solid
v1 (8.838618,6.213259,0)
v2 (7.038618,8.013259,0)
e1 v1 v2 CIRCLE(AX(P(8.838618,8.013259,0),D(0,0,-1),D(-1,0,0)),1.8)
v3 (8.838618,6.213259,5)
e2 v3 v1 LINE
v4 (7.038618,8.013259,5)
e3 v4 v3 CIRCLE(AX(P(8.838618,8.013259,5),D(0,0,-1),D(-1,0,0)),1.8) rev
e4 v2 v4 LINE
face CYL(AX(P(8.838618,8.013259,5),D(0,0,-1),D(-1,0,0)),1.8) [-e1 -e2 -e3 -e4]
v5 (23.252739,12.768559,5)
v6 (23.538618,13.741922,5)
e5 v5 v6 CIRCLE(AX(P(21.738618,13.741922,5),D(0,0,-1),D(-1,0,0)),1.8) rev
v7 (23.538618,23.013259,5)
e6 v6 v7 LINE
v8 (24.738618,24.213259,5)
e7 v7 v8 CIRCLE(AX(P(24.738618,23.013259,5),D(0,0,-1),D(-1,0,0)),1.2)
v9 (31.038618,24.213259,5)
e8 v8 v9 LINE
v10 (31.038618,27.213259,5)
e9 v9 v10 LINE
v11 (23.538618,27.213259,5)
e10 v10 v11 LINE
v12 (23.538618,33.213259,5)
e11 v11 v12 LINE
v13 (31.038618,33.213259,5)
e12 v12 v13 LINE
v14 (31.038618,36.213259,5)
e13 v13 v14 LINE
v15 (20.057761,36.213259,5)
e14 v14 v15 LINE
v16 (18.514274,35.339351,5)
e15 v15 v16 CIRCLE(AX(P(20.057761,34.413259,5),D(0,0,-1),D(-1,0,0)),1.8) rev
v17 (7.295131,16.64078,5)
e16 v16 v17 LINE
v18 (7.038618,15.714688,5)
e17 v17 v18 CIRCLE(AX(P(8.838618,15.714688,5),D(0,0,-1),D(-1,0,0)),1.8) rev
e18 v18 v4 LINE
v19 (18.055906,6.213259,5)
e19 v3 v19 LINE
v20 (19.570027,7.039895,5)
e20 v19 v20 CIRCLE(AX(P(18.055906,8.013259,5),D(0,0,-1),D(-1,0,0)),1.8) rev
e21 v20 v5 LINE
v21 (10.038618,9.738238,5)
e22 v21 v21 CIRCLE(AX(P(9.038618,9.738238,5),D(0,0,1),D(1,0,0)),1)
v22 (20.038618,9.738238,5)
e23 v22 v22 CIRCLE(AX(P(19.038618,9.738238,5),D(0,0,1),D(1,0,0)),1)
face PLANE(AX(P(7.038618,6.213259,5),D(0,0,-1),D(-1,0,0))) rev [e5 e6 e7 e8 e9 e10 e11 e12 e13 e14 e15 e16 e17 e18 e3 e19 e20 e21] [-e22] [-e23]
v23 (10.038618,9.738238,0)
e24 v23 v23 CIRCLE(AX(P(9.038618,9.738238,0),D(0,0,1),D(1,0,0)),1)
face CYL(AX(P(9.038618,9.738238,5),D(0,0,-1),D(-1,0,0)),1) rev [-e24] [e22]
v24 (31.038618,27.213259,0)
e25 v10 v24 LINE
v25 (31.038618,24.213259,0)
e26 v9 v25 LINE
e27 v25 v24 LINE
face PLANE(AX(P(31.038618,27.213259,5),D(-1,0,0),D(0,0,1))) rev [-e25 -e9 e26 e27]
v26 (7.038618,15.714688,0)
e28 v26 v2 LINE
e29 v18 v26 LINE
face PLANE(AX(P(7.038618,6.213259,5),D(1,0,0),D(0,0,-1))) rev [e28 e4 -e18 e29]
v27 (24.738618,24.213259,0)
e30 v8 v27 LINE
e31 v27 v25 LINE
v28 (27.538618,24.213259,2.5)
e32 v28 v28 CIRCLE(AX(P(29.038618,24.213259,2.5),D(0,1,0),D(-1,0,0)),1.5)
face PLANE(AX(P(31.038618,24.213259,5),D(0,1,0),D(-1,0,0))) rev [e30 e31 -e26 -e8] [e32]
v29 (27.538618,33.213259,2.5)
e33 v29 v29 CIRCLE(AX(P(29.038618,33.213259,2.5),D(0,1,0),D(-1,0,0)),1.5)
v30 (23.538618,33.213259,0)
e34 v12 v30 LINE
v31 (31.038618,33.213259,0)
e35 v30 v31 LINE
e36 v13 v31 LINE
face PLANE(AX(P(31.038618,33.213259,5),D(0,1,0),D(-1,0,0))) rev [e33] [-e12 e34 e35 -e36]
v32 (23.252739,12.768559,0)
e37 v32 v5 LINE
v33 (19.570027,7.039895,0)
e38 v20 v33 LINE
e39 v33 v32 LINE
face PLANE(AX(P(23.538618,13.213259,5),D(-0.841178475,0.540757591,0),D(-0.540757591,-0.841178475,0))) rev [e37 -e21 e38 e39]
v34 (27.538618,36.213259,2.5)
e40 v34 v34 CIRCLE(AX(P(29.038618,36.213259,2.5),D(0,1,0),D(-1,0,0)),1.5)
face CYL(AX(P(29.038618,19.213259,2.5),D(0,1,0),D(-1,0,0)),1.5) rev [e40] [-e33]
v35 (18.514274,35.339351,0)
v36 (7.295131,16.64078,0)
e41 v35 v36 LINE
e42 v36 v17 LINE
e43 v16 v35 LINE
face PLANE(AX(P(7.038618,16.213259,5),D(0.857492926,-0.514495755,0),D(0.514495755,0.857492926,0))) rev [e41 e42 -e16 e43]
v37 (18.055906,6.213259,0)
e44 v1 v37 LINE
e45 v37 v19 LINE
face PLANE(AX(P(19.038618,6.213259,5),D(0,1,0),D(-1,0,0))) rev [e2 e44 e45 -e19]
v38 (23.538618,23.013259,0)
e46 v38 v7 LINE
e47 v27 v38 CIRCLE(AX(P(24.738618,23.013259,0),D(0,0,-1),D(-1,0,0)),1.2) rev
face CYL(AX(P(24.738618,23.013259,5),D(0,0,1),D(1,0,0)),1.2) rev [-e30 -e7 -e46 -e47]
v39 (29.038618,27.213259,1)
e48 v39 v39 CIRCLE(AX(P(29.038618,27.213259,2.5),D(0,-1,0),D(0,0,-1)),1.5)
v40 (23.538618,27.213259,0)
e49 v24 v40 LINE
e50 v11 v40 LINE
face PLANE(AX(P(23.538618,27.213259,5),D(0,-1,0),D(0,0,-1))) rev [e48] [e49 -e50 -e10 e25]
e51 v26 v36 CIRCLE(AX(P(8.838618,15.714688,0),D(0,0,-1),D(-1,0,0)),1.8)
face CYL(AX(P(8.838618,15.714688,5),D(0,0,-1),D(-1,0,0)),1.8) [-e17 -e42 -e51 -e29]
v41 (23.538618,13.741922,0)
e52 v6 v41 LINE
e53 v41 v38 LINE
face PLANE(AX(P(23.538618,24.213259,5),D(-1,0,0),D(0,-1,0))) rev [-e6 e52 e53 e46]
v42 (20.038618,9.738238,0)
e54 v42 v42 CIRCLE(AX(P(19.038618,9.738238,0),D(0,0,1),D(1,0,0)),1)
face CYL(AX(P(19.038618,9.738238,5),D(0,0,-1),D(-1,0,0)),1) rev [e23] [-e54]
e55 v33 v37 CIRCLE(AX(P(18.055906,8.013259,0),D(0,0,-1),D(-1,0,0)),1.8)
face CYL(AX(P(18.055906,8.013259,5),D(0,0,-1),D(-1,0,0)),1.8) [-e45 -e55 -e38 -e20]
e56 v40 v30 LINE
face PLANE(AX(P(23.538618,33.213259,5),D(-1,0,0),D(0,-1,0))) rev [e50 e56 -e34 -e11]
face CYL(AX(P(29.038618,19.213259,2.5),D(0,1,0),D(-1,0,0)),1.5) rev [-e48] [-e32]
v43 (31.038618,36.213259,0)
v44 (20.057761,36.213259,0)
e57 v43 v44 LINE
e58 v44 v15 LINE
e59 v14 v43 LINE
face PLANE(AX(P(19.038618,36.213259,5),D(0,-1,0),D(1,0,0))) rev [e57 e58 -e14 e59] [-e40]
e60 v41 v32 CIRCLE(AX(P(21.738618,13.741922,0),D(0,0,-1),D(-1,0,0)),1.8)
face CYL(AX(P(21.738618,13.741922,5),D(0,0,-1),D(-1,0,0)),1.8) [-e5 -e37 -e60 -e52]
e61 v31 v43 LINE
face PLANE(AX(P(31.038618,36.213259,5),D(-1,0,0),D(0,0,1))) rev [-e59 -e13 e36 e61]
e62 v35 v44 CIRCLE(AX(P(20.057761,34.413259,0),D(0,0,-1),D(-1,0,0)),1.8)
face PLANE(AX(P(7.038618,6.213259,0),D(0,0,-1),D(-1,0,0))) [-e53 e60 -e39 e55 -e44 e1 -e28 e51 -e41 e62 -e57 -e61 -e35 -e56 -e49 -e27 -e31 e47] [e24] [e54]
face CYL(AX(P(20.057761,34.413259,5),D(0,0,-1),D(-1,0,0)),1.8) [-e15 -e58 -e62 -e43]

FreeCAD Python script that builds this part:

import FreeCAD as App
import Part
import Sketcher

V = App.Vector


def edges_at(feature, points):
    """Names of the edges that pass closest to the given points."""
    edges = feature.Shape.Edges
    near = lambda p: min(range(len(edges)), key=lambda i: edges[i].distToShape(Part.Vertex(*p))[0])
    return sorted({f"Edge{near(p) + 1}" for p in points})

doc = App.newDocument("Part")
body = doc.addObject("PartDesign::Body", "Body")

# Sketch on XY plane
sketch1 = body.newObject("Sketcher::SketchObject", "Sketch")
sketch1.AttachmentSupport = (doc.getObject("XY_Plane"), [""])
sketch1.MapMode = "FlatFace"
sketch1.addGeometry([
    Part.LineSegment(V(7, 16.2, 0), V(7, 6.2, 0)),  # 0
    Part.LineSegment(V(7, 6.2, 0), V(19, 6.2, 0)),  # 1
    Part.LineSegment(V(19, 6.2, 0), V(23.5, 13.2, 0)),  # 2
    Part.LineSegment(V(23.5, 13.2, 0), V(23.5, 24.2, 0)),  # 3
    Part.LineSegment(V(23.5, 24.2, 0), V(31, 24.2, 0)),  # 4
    Part.LineSegment(V(31, 24.2, 0), V(31, 27.2, 0)),  # 5
    Part.LineSegment(V(31, 27.2, 0), V(23.5, 27.2, 0)),  # 6
    Part.LineSegment(V(23.5, 27.2, 0), V(23.5, 33.2, 0)),  # 7
    Part.LineSegment(V(23.5, 33.2, 0), V(31, 33.2, 0)),  # 8
    Part.LineSegment(V(31, 33.2, 0), V(31, 36.2, 0)),  # 9
    Part.LineSegment(V(31, 36.2, 0), V(19, 36.2, 0)),  # 10
    Part.LineSegment(V(19, 36.2, 0), V(7, 16.2, 0)),  # 11
    Part.Circle(V(19, 9.7, 0), V(0, 0, 1), 1),  # 12
    Part.Circle(V(9, 9.7, 0), V(0, 0, 1), 1),  # 13
], False)
sketch1.addConstraint([
    Sketcher.Constraint("Coincident", 0, 2, 1, 1),
    Sketcher.Constraint("Coincident", 1, 2, 2, 1),
    Sketcher.Constraint("Coincident", 2, 2, 3, 1),
    Sketcher.Constraint("Coincident", 3, 2, 4, 1),
    Sketcher.Constraint("Coincident", 4, 2, 5, 1),
    Sketcher.Constraint("Coincident", 5, 2, 6, 1),
    Sketcher.Constraint("Coincident", 6, 2, 7, 1),
    Sketcher.Constraint("Coincident", 7, 2, 8, 1),
    Sketcher.Constraint("Coincident", 8, 2, 9, 1),
    Sketcher.Constraint("Coincident", 9, 2, 10, 1),
    Sketcher.Constraint("Coincident", 10, 2, 11, 1),
    Sketcher.Constraint("Coincident", 11, 2, 0, 1),
    Sketcher.Constraint("Vertical", 0),
    Sketcher.Constraint("Horizontal", 1),
    Sketcher.Constraint("Vertical", 3),
    Sketcher.Constraint("Horizontal", 4),
    Sketcher.Constraint("Vertical", 5),
    Sketcher.Constraint("Horizontal", 6),
    Sketcher.Constraint("Vertical", 7),
    Sketcher.Constraint("Horizontal", 8),
    Sketcher.Constraint("Vertical", 9),
    Sketcher.Constraint("Horizontal", 10),
    Sketcher.Constraint("Equal", 12, 13),
    Sketcher.Constraint("Horizontal", 12, 3, 13, 3),
    Sketcher.Constraint("Vertical", 12, 3, 1, 2),
    Sketcher.Constraint("Vertical", 3, 2, 6, 2),
    Sketcher.Constraint("Vertical", 5, 2, 8, 2),
    Sketcher.Constraint("Vertical", 1, 2, 10, 2),
    Sketcher.Constraint("Equal", 1, 10),
    Sketcher.Constraint("Equal", 5, 9),
    Sketcher.Constraint("Diameter", 12, 2.0),
    Sketcher.Constraint("DistanceX", 1, 1, 1, 2, 12.0),
    Sketcher.Constraint("DistanceY", 0, 2, 0, 1, 10.0),
    Sketcher.Constraint("DistanceY", 3, 1, 3, 2, 11.0),
    Sketcher.Constraint("DistanceY", 5, 1, 5, 2, 3.0),
    Sketcher.Constraint("DistanceY", 7, 1, 7, 2, 6.0),
    Sketcher.Constraint("DistanceX", 4, 1, 4, 2, 7.5),
    Sketcher.Constraint("DistanceX", 13, 3, 12, 3, 10.0),
    Sketcher.Constraint("DistanceY", 1, 2, 2, 2, 7.0),
    Sketcher.Constraint("DistanceX", -1, 1, 12, 3, 19.038618),
    Sketcher.Constraint("DistanceY", -1, 1, 0, 2, 6.213259),
    Sketcher.Constraint("DistanceY", 0, 2, 13, 3, 3.524979),
])
pad1 = body.newObject("PartDesign::Pad", "Pad")
pad1.Profile = sketch1
pad1.Length = 5
doc.recompute()

fillet = body.newObject("PartDesign::Fillet", "Fillet")
fillet.Base = (pad1, edges_at(pad1, [
    (7.039, 6.213, 2.5),
    (7.039, 16.213, 2.5),
    (19.039, 36.213, 2.5),
    (23.539, 13.213, 2.5),
    (19.039, 6.213, 2.5),
]))
fillet.Radius = 1.8
doc.recompute()

fillet2 = body.newObject("PartDesign::Fillet", "Fillet001")
fillet2.Base = (fillet, edges_at(fillet, [(23.539, 24.213, 2.5)]))
fillet2.Radius = 1.2

# Sketch on XZ plane
sketch2 = body.newObject("Sketcher::SketchObject", "Sketch001")
sketch2.AttachmentSupport = (doc.getObject("XZ_Plane"), [""])
sketch2.MapMode = "FlatFace"
sketch2.AttachmentOffset = App.Placement(V(0, 0, -36.213259), App.Rotation())
sketch2.addGeometry(Part.Circle(V(29, 2.5, 0), V(0, 0, 1), 1.5), False)
sketch2.addConstraint([
    Sketcher.Constraint("Diameter", 0, 3.0),
    Sketcher.Constraint("DistanceY", -1, 1, 0, 3, 2.5),
    Sketcher.Constraint("DistanceX", -1, 1, 0, 3, 29.038618),
])
pocket1 = body.newObject("PartDesign::Pocket", "Pocket")
pocket1.Profile = sketch2
pocket1.Length = 17
pocket1.Reversed = True

doc.recompute()
